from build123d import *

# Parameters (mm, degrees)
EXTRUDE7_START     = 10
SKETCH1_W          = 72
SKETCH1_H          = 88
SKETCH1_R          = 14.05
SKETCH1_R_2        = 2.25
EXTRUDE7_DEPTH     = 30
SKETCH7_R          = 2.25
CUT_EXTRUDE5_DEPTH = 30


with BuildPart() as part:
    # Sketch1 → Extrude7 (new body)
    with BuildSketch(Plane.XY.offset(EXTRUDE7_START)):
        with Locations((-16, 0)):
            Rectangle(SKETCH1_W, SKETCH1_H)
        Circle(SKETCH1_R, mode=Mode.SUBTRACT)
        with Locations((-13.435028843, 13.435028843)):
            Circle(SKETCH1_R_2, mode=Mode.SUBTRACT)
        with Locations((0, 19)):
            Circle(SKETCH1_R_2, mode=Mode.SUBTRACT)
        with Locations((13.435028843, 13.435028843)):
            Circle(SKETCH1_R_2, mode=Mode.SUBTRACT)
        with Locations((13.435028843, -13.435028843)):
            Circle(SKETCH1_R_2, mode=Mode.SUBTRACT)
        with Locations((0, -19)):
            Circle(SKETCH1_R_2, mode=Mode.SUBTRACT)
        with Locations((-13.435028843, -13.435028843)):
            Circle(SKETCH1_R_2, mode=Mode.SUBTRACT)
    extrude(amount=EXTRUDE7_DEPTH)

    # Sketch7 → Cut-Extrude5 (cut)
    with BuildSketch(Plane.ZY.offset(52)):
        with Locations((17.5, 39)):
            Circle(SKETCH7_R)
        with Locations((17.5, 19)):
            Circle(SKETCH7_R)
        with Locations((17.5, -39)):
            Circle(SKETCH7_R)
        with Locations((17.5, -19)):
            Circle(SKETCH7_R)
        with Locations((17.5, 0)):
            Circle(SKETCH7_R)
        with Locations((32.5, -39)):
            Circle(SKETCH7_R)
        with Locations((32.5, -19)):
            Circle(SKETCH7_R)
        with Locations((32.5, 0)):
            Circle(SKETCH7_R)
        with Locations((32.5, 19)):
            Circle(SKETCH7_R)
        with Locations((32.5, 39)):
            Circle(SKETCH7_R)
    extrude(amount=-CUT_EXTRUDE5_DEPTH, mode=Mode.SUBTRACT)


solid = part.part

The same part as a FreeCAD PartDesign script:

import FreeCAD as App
import Part
import Sketcher
from FreeCAD import Vector


def add_polygon(sketch, points):
    """Adds a closed chain of lines whose ends are joined by coincident constraints."""
    first, n = sketch.GeometryCount, len(points)
    for a, b in zip(points, points[1:] + points[:1]):
        sketch.addGeometry(Part.LineSegment(App.Vector(*a, 0), App.Vector(*b, 0)), False)
    for i in range(n):
        sketch.addConstraint(Sketcher.Constraint("Coincident", first + i, 2, first + (i + 1) % n, 1))

doc = App.newDocument("Part")
body = doc.addObject("PartDesign::Body", "Body")

sketch1 = body.newObject("Sketcher::SketchObject", "Sketch")
sketch1.AttachmentSupport = (doc.getObject("XY_Plane"), [""])
sketch1.MapMode = "FlatFace"
sketch1.AttachmentOffset = App.Placement(Vector(0, 0, 10), App.Rotation())
add_polygon(sketch1, [(-52, 44), (-52, -44), (20, -44), (20, 44)])
sketch1.addGeometry(Part.Circle(Vector(-13.4, -13.4, 0), Vector(0, 0, 1), 2.2), False)
sketch1.addGeometry(Part.Circle(Vector(0, -19, 0), Vector(0, 0, 1), 2.2), False)
sketch1.addGeometry(Part.Circle(Vector(13.4, -13.4, 0), Vector(0, 0, 1), 2.2), False)
sketch1.addGeometry(Part.Circle(Vector(-13.4, 13.4, 0), Vector(0, 0, 1), 2.2), False)
sketch1.addGeometry(Part.Circle(Vector(0, 0, 0), Vector(0, 0, 1), 14.1), False)
sketch1.addGeometry(Part.Circle(Vector(0, 19, 0), Vector(0, 0, 1), 2.2), False)
sketch1.addGeometry(Part.Circle(Vector(13.4, 13.4, 0), Vector(0, 0, 1), 2.2), False)
sketch1.addConstraint(Sketcher.Constraint("Vertical", 0))
sketch1.addConstraint(Sketcher.Constraint("Horizontal", 1))
sketch1.addConstraint(Sketcher.Constraint("Vertical", 2))
sketch1.addConstraint(Sketcher.Constraint("Horizontal", 3))
sketch1.addConstraint(Sketcher.Constraint("Coincident", 8, 3, -1, 1))
sketch1.addConstraint(Sketcher.Constraint("Equal", 4, 5))
sketch1.addConstraint(Sketcher.Constraint("Equal", 5, 6))
sketch1.addConstraint(Sketcher.Constraint("Equal", 6, 7))
sketch1.addConstraint(Sketcher.Constraint("Equal", 7, 9))
sketch1.addConstraint(Sketcher.Constraint("Equal", 9, 10))
sketch1.addConstraint(Sketcher.Constraint("Symmetric", 6, 3, 7, 3, -1, 1))
sketch1.addConstraint(Sketcher.Constraint("Symmetric", 5, 3, 9, 3, -1, 1))
sketch1.addConstraint(Sketcher.Constraint("Symmetric", 4, 3, 10, 3, -1, 1))
sketch1.addConstraint(Sketcher.Constraint("Symmetric", 4, 3, 6, 3, -2))
sketch1.addConstraint(Sketcher.Constraint("PointOnObject", 5, 3, -2))
sketch1.addConstraint(Sketcher.Constraint("Diameter", 4, 4.5))
sketch1.addConstraint(Sketcher.Constraint("Diameter", 8, 28.1))
sketch1.addConstraint(Sketcher.Constraint("DistanceX", 1, 1, 1, 2, 72.0))
sketch1.addConstraint(Sketcher.Constraint("DistanceY", 0, 2, 0, 1, 88.0))
sketch1.addConstraint(Sketcher.Constraint("DistanceY", 5, 3, -1, 1, 19.0))
sketch1.addConstraint(Sketcher.Constraint("DistanceX", 0, 2, -1, 1, 52.0))
sketch1.addConstraint(Sketcher.Constraint("DistanceY", 0, 2, -1, 1, 44.0))
sketch1.addConstraint(Sketcher.Constraint("DistanceX", 4, 3, -1, 1, 13.435029))
sketch1.addConstraint(Sketcher.Constraint("DistanceY", 4, 3, -1, 1, 13.435029))
pad1 = body.newObject("PartDesign::Pad", "Pad")
pad1.Profile = sketch1
pad1.Length = 30

sketch2 = body.newObject("Sketcher::SketchObject", "Sketch001")
sketch2.AttachmentSupport = (doc.getObject("YZ_Plane"), [""])
sketch2.MapMode = "FlatFace"
sketch2.AttachmentOffset = App.Placement(Vector(0, 0, -52), App.Rotation())
sketch2.addGeometry(Part.Circle(Vector(39, 17.5, 0), Vector(0, 0, 1), 2.2), False)
sketch2.addGeometry(Part.Circle(Vector(19, 17.5, 0), Vector(0, 0, 1), 2.2), False)
sketch2.addGeometry(Part.Circle(Vector(-39, 17.5, 0), Vector(0, 0, 1), 2.2), False)
sketch2.addGeometry(Part.Circle(Vector(-19, 17.5, 0), Vector(0, 0, 1), 2.2), False)
sketch2.addGeometry(Part.Circle(Vector(0, 17.5, 0), Vector(0, 0, 1), 2.2), False)
sketch2.addGeometry(Part.Circle(Vector(-39, 32.5, 0), Vector(0, 0, 1), 2.2), False)
sketch2.addGeometry(Part.Circle(Vector(-19, 32.5, 0), Vector(0, 0, 1), 2.2), False)
sketch2.addGeometry(Part.Circle(Vector(0, 32.5, 0), Vector(0, 0, 1), 2.2), False)
sketch2.addGeometry(Part.Circle(Vector(19, 32.5, 0), Vector(0, 0, 1), 2.2), False)
sketch2.addGeometry(Part.Circle(Vector(39, 32.5, 0), Vector(0, 0, 1), 2.2), False)
sketch2.addConstraint(Sketcher.Constraint("Equal", 0, 1))
sketch2.addConstraint(Sketcher.Constraint("Equal", 1, 2))
sketch2.addConstraint(Sketcher.Constraint("Equal", 2, 3))
sketch2.addConstraint(Sketcher.Constraint("Equal", 3, 4))
sketch2.addConstraint(Sketcher.Constraint("Equal", 4, 5))
sketch2.addConstraint(Sketcher.Constraint("Equal", 5, 6))
sketch2.addConstraint(Sketcher.Constraint("Equal", 6, 7))
sketch2.addConstraint(Sketcher.Constraint("Equal", 7, 8))
sketch2.addConstraint(Sketcher.Constraint("Equal", 8, 9))
sketch2.addConstraint(Sketcher.Constraint("Symmetric", 0, 3, 2, 3, -2))
sketch2.addConstraint(Sketcher.Constraint("Symmetric", 1, 3, 3, 3, -2))
sketch2.addConstraint(Sketcher.Constraint("Symmetric", 6, 3, 8, 3, -2))
sketch2.addConstraint(Sketcher.Constraint("Symmetric", 5, 3, 9, 3, -2))
sketch2.addConstraint(Sketcher.Constraint("PointOnObject", 4, 3, -2))
sketch2.addConstraint(Sketcher.Constraint("PointOnObject", 7, 3, -2))
sketch2.addConstraint(Sketcher.Constraint("Horizontal", 0, 3, 1, 3))
sketch2.addConstraint(Sketcher.Constraint("Horizontal", 3, 3, 4, 3))
sketch2.addConstraint(Sketcher.Constraint("Horizontal", 5, 3, 6, 3))
sketch2.addConstraint(Sketcher.Constraint("Horizontal", 6, 3, 7, 3))
sketch2.addConstraint(Sketcher.Constraint("Vertical", 2, 3, 5, 3))
sketch2.addConstraint(Sketcher.Constraint("Vertical", 3, 3, 6, 3))
sketch2.addConstraint(Sketcher.Constraint("Diameter", 0, 4.5))
sketch2.addConstraint(Sketcher.Constraint("DistanceX", -1, 1, 0, 3, 39.0))
sketch2.addConstraint(Sketcher.Constraint("DistanceX", -1, 1, 1, 3, 19.0))
sketch2.addConstraint(Sketcher.Constraint("DistanceY", 2, 3, 5, 3, 15.0))
sketch2.addConstraint(Sketcher.Constraint("DistanceY", -1, 1, 0, 3, 17.5))
pocket1 = body.newObject("PartDesign::Pocket", "Pocket")
pocket1.Profile = sketch2
pocket1.Length = 30
pocket1.Reversed = True

doc.recompute()
